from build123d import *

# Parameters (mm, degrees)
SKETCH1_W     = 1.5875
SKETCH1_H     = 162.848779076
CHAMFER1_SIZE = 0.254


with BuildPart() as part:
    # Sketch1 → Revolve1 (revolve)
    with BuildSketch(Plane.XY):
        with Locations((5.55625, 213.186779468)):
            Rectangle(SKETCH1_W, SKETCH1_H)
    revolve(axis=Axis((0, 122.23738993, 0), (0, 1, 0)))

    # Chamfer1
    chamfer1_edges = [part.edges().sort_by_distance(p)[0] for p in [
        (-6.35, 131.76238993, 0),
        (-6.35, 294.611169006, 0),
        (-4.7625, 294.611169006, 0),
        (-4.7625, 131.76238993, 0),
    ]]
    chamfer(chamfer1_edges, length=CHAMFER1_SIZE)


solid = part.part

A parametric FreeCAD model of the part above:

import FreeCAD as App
import Part
import Sketcher
from FreeCAD import Vector
Q = App.Units.Quantity


def edges_at(feature, points):
    """Names of the edges that pass closest to the given points."""
    edges = feature.Shape.Edges
    near = lambda p: min(range(len(edges)), key=lambda i: edges[i].distToShape(Part.Vertex(*p))[0])
    return sorted({f"Edge{near(p) + 1}" for p in points})


def add_polygon(sketch, points):
    """Adds a closed chain of lines whose ends are joined by coincident constraints."""
    first, n = sketch.GeometryCount, len(points)
    for a, b in zip(points, points[1:] + points[:1]):
        sketch.addGeometry(Part.LineSegment(App.Vector(*a, 0), App.Vector(*b, 0)), False)
    for i in range(n):
        sketch.addConstraint(Sketcher.Constraint("Coincident", first + i, 2, first + (i + 1) % n, 1))

doc = App.newDocument("Part")
body = doc.addObject("PartDesign::Body", "Body")

# Sketch on XY plane
sketch1 = doc.addObject("Sketcher::SketchObject", "Sketch")
body.addObject(sketch1)
sketch1.AttachmentSupport = (doc.XY_Plane, [""])
sketch1.MapMode = "FlatFace"
add_polygon(sketch1, [(4.7625, 294.611169), (4.7625, 131.76239), (6.35, 131.76239), (6.35, 294.611169)])  # lines 0-3
sketch1.addConstraint([
    Sketcher.Constraint("Vertical", 0),
    Sketcher.Constraint("Horizontal", 1),
    Sketcher.Constraint("Vertical", 2),
    Sketcher.Constraint("Horizontal", 3),
    Sketcher.Constraint("DistanceX", 1, 1, 1, 2, Q("0.0625 in")),
    Sketcher.Constraint("DistanceX", -1, 1, 1, 2, Q("0.25 in")),
    Sketcher.Constraint("DistanceY", 0, 2, 0, 1, Q("162.848779 mm")),
    Sketcher.Constraint("DistanceY", -1, 1, 0, 2, Q("131.76239 mm")),
])
revolution = doc.addObject("PartDesign::Revolution", "Revolution")
body.addObject(revolution)
revolution.Profile = sketch1
revolution.ReferenceAxis = (sketch1, ["V_Axis"])
revolution.Angle = 360
doc.recompute()

chamfer = doc.addObject("PartDesign::Chamfer", "Chamfer")
body.addObject(chamfer)
chamfer.Base = (revolution, edges_at(revolution, [
    (-6.35, 131.762, 0),
    (-6.35, 294.611, 0),
    (-4.763, 294.611, 0),
    (-4.763, 131.762, 0),
]))
chamfer.Size = Q("0.01 in")

doc.recompute()
